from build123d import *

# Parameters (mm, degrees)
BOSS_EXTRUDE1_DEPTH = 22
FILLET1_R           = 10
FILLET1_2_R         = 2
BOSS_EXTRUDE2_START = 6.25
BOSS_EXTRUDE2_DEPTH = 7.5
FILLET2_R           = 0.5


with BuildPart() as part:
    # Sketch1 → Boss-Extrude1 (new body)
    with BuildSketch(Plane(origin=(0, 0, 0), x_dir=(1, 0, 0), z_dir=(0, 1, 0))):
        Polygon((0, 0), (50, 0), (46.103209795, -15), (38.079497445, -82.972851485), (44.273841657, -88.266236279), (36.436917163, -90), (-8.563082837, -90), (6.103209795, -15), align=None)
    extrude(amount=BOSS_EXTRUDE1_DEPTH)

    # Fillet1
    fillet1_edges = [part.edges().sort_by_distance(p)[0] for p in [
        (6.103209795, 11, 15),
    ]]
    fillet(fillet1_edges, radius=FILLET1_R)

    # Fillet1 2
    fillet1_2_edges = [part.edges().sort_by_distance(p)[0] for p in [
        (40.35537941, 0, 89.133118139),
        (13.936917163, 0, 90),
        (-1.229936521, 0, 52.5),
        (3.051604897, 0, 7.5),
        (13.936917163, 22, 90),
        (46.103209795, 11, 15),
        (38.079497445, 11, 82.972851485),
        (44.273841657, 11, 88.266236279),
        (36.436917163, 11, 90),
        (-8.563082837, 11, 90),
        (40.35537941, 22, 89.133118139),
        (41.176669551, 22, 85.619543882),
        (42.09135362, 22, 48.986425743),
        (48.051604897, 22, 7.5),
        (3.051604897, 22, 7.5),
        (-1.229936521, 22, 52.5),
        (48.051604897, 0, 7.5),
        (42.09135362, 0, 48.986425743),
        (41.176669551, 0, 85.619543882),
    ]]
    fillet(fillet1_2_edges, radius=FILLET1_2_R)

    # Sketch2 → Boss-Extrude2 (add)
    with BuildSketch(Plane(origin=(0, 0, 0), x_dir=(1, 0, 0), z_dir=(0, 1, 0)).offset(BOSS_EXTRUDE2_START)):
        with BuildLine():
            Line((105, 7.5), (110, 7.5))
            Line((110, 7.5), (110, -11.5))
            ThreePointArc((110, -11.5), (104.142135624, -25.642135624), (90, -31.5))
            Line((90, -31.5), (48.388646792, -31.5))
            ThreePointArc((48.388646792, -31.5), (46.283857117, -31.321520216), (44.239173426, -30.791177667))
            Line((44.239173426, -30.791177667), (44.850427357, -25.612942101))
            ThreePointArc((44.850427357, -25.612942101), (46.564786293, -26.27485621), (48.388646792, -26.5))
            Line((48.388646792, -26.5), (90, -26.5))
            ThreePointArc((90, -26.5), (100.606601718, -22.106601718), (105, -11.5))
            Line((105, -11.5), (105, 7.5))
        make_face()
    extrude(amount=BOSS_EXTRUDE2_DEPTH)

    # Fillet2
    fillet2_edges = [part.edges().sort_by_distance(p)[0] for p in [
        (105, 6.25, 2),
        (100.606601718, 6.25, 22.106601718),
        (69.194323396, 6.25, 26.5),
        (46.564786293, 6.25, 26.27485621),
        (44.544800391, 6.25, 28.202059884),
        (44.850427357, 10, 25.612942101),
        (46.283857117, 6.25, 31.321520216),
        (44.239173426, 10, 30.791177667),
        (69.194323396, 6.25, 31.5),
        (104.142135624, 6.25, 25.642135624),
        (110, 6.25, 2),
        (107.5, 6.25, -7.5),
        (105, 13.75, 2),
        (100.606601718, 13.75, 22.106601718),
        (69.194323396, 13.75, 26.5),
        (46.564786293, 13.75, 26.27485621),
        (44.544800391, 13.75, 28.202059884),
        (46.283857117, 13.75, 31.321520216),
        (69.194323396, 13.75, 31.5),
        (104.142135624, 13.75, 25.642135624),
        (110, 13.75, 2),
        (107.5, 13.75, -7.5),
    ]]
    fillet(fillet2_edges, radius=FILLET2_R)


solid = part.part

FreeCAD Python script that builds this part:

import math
import FreeCAD as App
import Part
import Sketcher
from FreeCAD import Vector


def edges_at(feature, points):
    """Names of the edges that pass closest to the given points."""
    edges = feature.Shape.Edges
    near = lambda p: min(range(len(edges)), key=lambda i: edges[i].distToShape(Part.Vertex(*p))[0])
    return sorted({f"Edge{near(p) + 1}" for p in points})


def add_polygon(sketch, points):
    """Adds a closed chain of lines whose ends are joined by coincident constraints."""
    first, n = sketch.GeometryCount, len(points)
    for a, b in zip(points, points[1:] + points[:1]):
        sketch.addGeometry(Part.LineSegment(App.Vector(*a, 0), App.Vector(*b, 0)), False)
    for i in range(n):
        sketch.addConstraint(Sketcher.Constraint("Coincident", first + i, 2, first + (i + 1) % n, 1))

doc = App.newDocument("Part")
body = doc.addObject("PartDesign::Body", "Body")

# Sketch on XZ plane
sketch1 = body.newObject("Sketcher::SketchObject", "Sketch")
sketch1.AttachmentSupport = (doc.getObject("XZ_Plane"), [""])
sketch1.MapMode = "FlatFace"
add_polygon(sketch1, [(50, 0), (0, 0), (6.10321, 15), (-8.563083, 90), (36.436917, 90), (44.273842, 88.266236), (38.079497, 82.972851), (46.10321, 15)])  # lines 0-7
sketch1.addConstraint([
    Sketcher.Constraint("Horizontal", 0),
    Sketcher.Constraint("Horizontal", 3),
    Sketcher.Constraint("Coincident", 0, 2, -1, 1),
    Sketcher.Constraint("Horizontal", 1, 2, 6, 2),
    Sketcher.Constraint("DistanceX", 0, 2, 0, 1, 50.0),
    Sketcher.Constraint("DistanceX", 3, 1, 3, 2, 45.0),
    Sketcher.Constraint("DistanceY", -1, 1, 1, 2, 15.0),
    Sketcher.Constraint("DistanceY", -1, 1, 2, 2, 90.0),
    Sketcher.Constraint("DistanceX", 1, 2, 6, 2, 40.0),
    Sketcher.Constraint("Distance", 1, 16.194109),
    Sketcher.Constraint("DistanceX", -1, 1, 4, 2, 44.273842),
    Sketcher.Constraint("DistanceY", -1, 1, 5, 2, 82.972851),
    Sketcher.Constraint("DistanceX", 3, 2, 5, 2, 1.64258),
    Sketcher.Constraint("Distance", 2, 76.420548),
    Sketcher.Constraint("Distance", 4, 8.026414),
])
pad1 = body.newObject("PartDesign::Pad", "Pad")
pad1.Profile = sketch1
pad1.Length = 22
pad1.Reversed = True
doc.recompute()

fillet = body.newObject("PartDesign::Fillet", "Fillet")
fillet.Base = (pad1, edges_at(pad1, [(6.103, 11, 15)]))
fillet.Radius = 10
doc.recompute()

fillet2 = body.newObject("PartDesign::Fillet", "Fillet001")
fillet2.Base = (fillet, edges_at(fillet, [
    (40.355, 0, 89.133),
    (13.937, 0, 90),
    (-1.516, 0, 53.963),
    (2.49, 0, 6.119),
    (13.937, 22, 90),
    (46.103, 11, 15),
    (38.079, 11, 82.973),
    (44.274, 11, 88.266),
    (36.437, 11, 90),
    (-8.563, 11, 90),
    (40.355, 22, 89.133),
    (41.177, 22, 85.62),
    (42.091, 22, 48.986),
    (48.052, 22, 7.5),
    (2.49, 22, 6.119),
    (-1.516, 22, 53.963),
    (48.052, 0, 7.5),
    (42.091, 0, 48.986),
    (41.177, 0, 85.62),
]))
fillet2.Radius = 2

# Sketch on XZ plane
sketch2 = body.newObject("Sketcher::SketchObject", "Sketch001")
sketch2.AttachmentSupport = (doc.getObject("XZ_Plane"), [""])
sketch2.MapMode = "FlatFace"
sketch2.AttachmentOffset = App.Placement(Vector(0, 0, -6.25), App.Rotation())
sketch2.addGeometry([
    Part.LineSegment(Vector(110, -7.5, 0), Vector(105, -7.5, 0)),  # 0
    Part.LineSegment(Vector(105, -7.5, 0), Vector(105, 11.5, 0)),  # 1
    Part.ArcOfCircle(Part.Circle(Vector(90, 11.5, 0), Vector(0, 0, 1), 15), math.radians(0), math.radians(90)),  # 2
    Part.LineSegment(Vector(90, 26.5, 0), Vector(48.388647, 26.5, 0)),  # 3
    Part.ArcOfCircle(Part.Circle(Vector(48.388647, 19, 0), Vector(0, 0, 1), 7.5), math.radians(90), math.radians(118.148771)),  # 4
    Part.LineSegment(Vector(44.850427, 25.612942, 0), Vector(44.239173, 30.791178, 0)),  # 5
    Part.ArcOfCircle(Part.Circle(Vector(48.388647, 19, 0), Vector(0, 0, 1), 12.5), math.radians(90), math.radians(109.387653)),  # 6
    Part.LineSegment(Vector(48.388647, 31.5, 0), Vector(90, 31.5, 0)),  # 7
    Part.ArcOfCircle(Part.Circle(Vector(90, 11.5, 0), Vector(0, 0, 1), 20), math.radians(0), math.radians(90)),  # 8
    Part.LineSegment(Vector(110, 11.5, 0), Vector(110, -7.5, 0)),  # 9
], False)
sketch2.addConstraint([
    Sketcher.Constraint("Coincident", 0, 2, 1, 1),
    Sketcher.Constraint("Tangent", 1, 2, 2, 1),
    Sketcher.Constraint("Tangent", 2, 2, 3, 1),
    Sketcher.Constraint("Tangent", 3, 2, 4, 1),
    Sketcher.Constraint("Coincident", 4, 2, 5, 1),
    Sketcher.Constraint("Coincident", 5, 2, 6, 2),
    Sketcher.Constraint("Tangent", 6, 1, 7, 1),
    Sketcher.Constraint("Tangent", 7, 2, 8, 2),
    Sketcher.Constraint("Tangent", 8, 1, 9, 1),
    Sketcher.Constraint("Coincident", 9, 2, 0, 1),
    Sketcher.Constraint("Horizontal", 0),
    Sketcher.Constraint("Vertical", 1),
    Sketcher.Constraint("Horizontal", 3),
    Sketcher.Constraint("Horizontal", 7),
    Sketcher.Constraint("Vertical", 9),
    Sketcher.Constraint("Coincident", 6, 3, 4, 3),
    Sketcher.Constraint("Coincident", 8, 3, 2, 3),
    Sketcher.Constraint("Radius", 2, 15.0),
    Sketcher.Constraint("Radius", 8, 20.0),
    Sketcher.Constraint("Radius", 4, 7.5),
    Sketcher.Constraint("DistanceY", 1, 1, 1, 2, 19.0),
    Sketcher.Constraint("DistanceX", -1, 1, 2, 3, 90.0),
    Sketcher.Constraint("DistanceY", -1, 1, 4, 3, 19.0),
    Sketcher.Constraint("DistanceX", 3, 2, 3, 1, 41.611353),
    Sketcher.Constraint("DistanceX", 4, 2, 3, 2, 3.538219),
    Sketcher.Constraint("Distance", 5, 5.214188),
])
pad2 = body.newObject("PartDesign::Pad", "Pad001")
pad2.Profile = sketch2
pad2.Length = 7.5
pad2.Reversed = True
doc.recompute()

fillet3 = body.newObject("PartDesign::Fillet", "Fillet002")
fillet3.Base = (pad2, edges_at(pad2, [
    (105, 6.25, 2),
    (100.607, 6.25, 22.107),
    (69.194, 6.25, 26.5),
    (46.565, 6.25, 26.275),
    (44.545, 6.25, 28.202),
    (44.85, 10, 25.613),
    (46.284, 6.25, 31.322),
    (44.239, 10, 30.791),
    (69.194, 6.25, 31.5),
    (104.142, 6.25, 25.642),
    (110, 6.25, 2),
    (107.5, 6.25, -7.5),
    (105, 13.75, 2),
    (100.607, 13.75, 22.107),
    (69.194, 13.75, 26.5),
    (46.565, 13.75, 26.275),
    (44.545, 13.75, 28.202),
    (46.284, 13.75, 31.322),
    (69.194, 13.75, 31.5),
    (104.142, 13.75, 25.642),
    (110, 13.75, 2),
    (107.5, 13.75, -7.5),
]))
fillet3.Radius = 0.5

doc.recompute()
